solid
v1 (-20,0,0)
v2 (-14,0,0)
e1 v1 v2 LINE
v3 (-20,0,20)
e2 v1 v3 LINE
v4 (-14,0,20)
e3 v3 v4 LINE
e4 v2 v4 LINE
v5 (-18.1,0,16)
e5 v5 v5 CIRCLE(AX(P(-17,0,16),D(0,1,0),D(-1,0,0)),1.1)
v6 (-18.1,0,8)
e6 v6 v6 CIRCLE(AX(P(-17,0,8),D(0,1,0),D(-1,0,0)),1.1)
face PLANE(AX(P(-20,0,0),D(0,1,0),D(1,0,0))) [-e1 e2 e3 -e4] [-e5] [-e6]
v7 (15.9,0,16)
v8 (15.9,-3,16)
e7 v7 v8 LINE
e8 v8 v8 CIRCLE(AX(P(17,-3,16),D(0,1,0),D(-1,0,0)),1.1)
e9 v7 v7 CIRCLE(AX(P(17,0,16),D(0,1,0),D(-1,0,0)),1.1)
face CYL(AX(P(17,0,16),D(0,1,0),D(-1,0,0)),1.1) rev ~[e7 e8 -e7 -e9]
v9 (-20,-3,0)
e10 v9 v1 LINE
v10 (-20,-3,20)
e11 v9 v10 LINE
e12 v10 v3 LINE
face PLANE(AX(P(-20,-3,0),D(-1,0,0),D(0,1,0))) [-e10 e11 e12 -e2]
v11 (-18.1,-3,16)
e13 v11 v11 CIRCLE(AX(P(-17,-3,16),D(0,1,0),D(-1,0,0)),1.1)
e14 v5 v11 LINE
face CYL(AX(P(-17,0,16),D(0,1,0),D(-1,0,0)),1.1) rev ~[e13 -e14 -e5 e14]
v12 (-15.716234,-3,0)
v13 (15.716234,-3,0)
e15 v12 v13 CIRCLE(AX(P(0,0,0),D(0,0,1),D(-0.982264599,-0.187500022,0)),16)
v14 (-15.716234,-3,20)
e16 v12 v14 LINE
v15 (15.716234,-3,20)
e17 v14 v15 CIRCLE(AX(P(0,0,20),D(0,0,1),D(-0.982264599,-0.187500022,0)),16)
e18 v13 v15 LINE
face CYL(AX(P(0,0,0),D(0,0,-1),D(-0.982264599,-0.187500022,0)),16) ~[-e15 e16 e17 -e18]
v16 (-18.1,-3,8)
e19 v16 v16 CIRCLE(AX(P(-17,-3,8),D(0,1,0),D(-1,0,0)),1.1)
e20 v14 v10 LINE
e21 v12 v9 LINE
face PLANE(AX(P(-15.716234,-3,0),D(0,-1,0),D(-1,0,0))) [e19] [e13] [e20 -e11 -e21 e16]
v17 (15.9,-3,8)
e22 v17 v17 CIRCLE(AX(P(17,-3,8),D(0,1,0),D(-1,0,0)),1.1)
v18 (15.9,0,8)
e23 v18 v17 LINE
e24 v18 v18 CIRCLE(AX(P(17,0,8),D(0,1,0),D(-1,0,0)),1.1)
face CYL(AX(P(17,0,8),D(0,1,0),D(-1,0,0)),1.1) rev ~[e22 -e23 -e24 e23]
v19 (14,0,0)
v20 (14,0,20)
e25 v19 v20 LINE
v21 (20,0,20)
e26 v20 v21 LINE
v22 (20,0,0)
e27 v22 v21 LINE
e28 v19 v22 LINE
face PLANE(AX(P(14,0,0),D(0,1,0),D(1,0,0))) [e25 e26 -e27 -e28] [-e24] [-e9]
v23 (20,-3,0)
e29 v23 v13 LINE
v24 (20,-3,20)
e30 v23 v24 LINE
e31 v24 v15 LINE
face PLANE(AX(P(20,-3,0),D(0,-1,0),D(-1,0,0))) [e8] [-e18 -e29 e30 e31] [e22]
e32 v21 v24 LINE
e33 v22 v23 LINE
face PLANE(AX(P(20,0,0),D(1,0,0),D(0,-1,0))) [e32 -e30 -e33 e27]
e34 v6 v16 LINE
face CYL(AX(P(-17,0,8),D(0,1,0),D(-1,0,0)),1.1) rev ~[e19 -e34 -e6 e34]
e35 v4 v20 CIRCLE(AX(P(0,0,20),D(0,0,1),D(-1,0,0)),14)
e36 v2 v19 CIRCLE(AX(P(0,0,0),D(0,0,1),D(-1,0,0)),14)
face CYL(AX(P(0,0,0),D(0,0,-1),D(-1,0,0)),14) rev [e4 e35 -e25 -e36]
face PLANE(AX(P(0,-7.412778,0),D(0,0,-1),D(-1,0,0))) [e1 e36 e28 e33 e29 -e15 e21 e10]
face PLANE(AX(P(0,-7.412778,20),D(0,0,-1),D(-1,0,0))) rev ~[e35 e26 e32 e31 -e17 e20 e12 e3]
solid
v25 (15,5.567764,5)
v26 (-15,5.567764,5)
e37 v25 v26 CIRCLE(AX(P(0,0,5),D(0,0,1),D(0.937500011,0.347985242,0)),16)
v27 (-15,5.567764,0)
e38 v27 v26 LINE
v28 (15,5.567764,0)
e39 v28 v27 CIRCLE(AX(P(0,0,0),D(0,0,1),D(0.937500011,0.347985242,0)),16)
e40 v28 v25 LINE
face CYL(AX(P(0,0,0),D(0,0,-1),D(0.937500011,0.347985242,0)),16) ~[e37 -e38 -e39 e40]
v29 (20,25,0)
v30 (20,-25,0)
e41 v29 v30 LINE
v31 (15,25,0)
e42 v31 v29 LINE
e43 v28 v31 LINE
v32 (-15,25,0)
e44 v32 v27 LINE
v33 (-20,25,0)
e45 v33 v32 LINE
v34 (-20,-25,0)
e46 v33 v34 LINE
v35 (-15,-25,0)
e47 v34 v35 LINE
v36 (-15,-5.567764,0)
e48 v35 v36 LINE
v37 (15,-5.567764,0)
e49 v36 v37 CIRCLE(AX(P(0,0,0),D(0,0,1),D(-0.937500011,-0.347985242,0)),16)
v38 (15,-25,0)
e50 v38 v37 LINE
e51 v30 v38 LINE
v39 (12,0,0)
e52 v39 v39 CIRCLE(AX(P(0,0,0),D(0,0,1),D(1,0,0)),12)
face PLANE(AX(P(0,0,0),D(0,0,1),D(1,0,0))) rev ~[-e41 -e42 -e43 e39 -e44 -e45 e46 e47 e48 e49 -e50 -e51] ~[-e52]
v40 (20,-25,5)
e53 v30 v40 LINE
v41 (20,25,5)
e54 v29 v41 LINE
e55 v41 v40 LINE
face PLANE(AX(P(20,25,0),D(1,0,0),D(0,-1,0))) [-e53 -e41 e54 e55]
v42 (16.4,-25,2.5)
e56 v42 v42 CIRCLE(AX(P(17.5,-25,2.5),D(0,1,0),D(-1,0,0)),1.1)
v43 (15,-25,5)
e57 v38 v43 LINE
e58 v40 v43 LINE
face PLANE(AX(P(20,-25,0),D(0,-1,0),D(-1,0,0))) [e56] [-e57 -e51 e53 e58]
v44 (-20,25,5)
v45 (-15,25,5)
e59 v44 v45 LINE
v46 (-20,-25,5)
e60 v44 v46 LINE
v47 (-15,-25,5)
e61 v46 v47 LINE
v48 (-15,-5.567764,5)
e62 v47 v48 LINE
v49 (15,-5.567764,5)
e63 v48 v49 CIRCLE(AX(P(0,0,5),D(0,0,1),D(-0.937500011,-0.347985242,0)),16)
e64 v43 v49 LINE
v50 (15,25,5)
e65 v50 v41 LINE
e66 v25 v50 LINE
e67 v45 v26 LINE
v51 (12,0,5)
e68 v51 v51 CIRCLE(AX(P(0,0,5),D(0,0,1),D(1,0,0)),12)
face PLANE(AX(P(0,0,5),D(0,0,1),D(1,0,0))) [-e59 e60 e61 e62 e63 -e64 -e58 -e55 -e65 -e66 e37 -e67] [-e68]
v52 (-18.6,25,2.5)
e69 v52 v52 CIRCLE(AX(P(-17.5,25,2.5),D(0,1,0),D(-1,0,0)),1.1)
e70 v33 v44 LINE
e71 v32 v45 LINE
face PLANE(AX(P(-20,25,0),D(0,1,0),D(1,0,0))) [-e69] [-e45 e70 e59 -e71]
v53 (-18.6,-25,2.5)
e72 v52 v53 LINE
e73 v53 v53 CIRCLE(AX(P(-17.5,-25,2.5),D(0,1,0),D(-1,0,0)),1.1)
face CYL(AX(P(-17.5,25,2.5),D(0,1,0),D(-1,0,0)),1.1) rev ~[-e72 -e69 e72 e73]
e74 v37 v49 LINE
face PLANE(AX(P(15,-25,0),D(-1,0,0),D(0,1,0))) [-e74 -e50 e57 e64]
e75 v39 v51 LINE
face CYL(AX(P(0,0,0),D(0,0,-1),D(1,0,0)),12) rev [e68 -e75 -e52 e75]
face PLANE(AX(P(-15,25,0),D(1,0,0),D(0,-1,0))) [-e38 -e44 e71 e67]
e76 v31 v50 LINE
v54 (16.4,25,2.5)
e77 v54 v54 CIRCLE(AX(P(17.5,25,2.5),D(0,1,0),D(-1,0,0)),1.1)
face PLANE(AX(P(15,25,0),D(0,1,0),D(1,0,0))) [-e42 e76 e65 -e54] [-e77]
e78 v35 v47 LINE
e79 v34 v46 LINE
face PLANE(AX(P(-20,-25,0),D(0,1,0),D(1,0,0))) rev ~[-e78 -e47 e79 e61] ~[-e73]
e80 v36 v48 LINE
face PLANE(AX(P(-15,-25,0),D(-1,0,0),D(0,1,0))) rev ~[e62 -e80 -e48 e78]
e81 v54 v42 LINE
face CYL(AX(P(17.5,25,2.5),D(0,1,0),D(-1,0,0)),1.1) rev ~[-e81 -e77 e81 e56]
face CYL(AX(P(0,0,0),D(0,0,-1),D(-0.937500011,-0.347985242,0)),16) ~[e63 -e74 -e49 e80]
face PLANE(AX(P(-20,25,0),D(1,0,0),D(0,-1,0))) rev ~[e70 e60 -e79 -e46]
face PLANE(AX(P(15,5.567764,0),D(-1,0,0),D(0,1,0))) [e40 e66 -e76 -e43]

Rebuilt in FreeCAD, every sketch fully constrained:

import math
import FreeCAD as App
import Part
import Sketcher
from FreeCAD import Vector

doc = App.newDocument("Part")
params = doc.addObject("Spreadsheet::Sheet", "Params")
for row, (alias, value) in enumerate([
    ("sketch1_radius", "16 mm"),
    ("sketch1_radius2", "14 mm"),
    ("sketch1_width", "6 mm"),
    ("sketch1_height", "3 mm"),
    ("pad1_length", "20 mm"),
    ("sketch2_diameter", "2.2 mm"),
    ("sketch3_diameter", "24 mm"),
    ("sketch3_radius", "16 mm"),
    ("sketch3_width", "5 mm"),
    ("sketch3_height", "50 mm"),
    ("pad2_length", "5 mm"),
    ("sketch4_diameter", "2.2 mm"),
], start=1):
    params.set(f"A{row}", alias)
    params.set(f"B{row}", "=" + value)
    params.setAlias(f"B{row}", alias)

body = doc.addObject("PartDesign::Body", "Body")

sketch1 = body.newObject("Sketcher::SketchObject", "Sketch")
sketch1.AttachmentSupport = (doc.getObject("XY_Plane"), [""])
sketch1.MapMode = "FlatFace"
sketch1.addGeometry([
    Part.LineSegment(Vector(-20, -3, 0), Vector(-15.716234, -3, 0)),
    Part.ArcOfCircle(Part.Circle(Vector(0, 0, 0), Vector(0, 0, 1), 16), math.radians(-169.193076), math.radians(-10.806924)),
    Part.LineSegment(Vector(15.716234, -3, 0), Vector(20, -3, 0)),
    Part.LineSegment(Vector(20, -3, 0), Vector(20, 0, 0)),
    Part.LineSegment(Vector(20, 0, 0), Vector(14, 0, 0)),
    Part.ArcOfCircle(Part.Circle(Vector(0, 0, 0), Vector(0, 0, 1), 14), math.radians(180), math.radians(360)),
    Part.LineSegment(Vector(-14, 0, 0), Vector(-20, 0, 0)),
    Part.LineSegment(Vector(-20, 0, 0), Vector(-20, -3, 0)),
], False)
sketch1.addConstraint([
    Sketcher.Constraint("Coincident", 0, 2, 1, 1),
    Sketcher.Constraint("Coincident", 1, 2, 2, 1),
    Sketcher.Constraint("Coincident", 2, 2, 3, 1),
    Sketcher.Constraint("Coincident", 3, 2, 4, 1),
    Sketcher.Constraint("Coincident", 4, 2, 5, 2),
    Sketcher.Constraint("Coincident", 5, 1, 6, 1),
    Sketcher.Constraint("Coincident", 6, 2, 7, 1),
    Sketcher.Constraint("Coincident", 7, 2, 0, 1),
    Sketcher.Constraint("Horizontal", 0),
    Sketcher.Constraint("Horizontal", 2),
    Sketcher.Constraint("Vertical", 3),
    Sketcher.Constraint("Horizontal", 4),
    Sketcher.Constraint("Horizontal", 6),
    Sketcher.Constraint("Vertical", 7),
    Sketcher.Constraint("Coincident", 1, 3, -1, 1),
    Sketcher.Constraint("Coincident", 5, 3, -1, 1),
    Sketcher.Constraint("Symmetric", 3, 2, 6, 2, -1, 1),
    Sketcher.Constraint("PointOnObject", 3, 2, -1),
    Sketcher.Constraint("Horizontal", 0, 2, 1, 2),
    Sketcher.Constraint("Radius", 1, 16.0),
    Sketcher.Constraint("Radius", 5, 14.0),
    Sketcher.Constraint("DistanceX", 4, 2, 4, 1, 6.0),
    Sketcher.Constraint("DistanceY", 3, 1, 3, 2, 3.0),
])
sketch1.setExpression("Constraints[19]", "Params.sketch1_radius")
sketch1.setExpression("Constraints[20]", "Params.sketch1_radius2")
sketch1.setExpression("Constraints[21]", "Params.sketch1_width")
sketch1.setExpression("Constraints[22]", "Params.sketch1_height")
pad1 = body.newObject("PartDesign::Pad", "Pad")
pad1.Profile = sketch1
pad1.setExpression("Length", "Params.pad1_length")

sketch2 = body.newObject("Sketcher::SketchObject", "Sketch001")
sketch2.AttachmentSupport = (doc.getObject("XZ_Plane"), [""])
sketch2.MapMode = "FlatFace"
sketch2.addGeometry([
    Part.Circle(Vector(17, 16, 0), Vector(0, 0, 1), 1.1),
    Part.Circle(Vector(17, 8, 0), Vector(0, 0, 1), 1.1),
    Part.Circle(Vector(-17, 16, 0), Vector(0, 0, 1), 1.1),
    Part.Circle(Vector(-17, 8, 0), Vector(0, 0, 1), 1.1),
], False)
sketch2.addConstraint([
    Sketcher.Constraint("Equal", 0, 1),
    Sketcher.Constraint("Equal", 1, 2),
    Sketcher.Constraint("Equal", 2, 3),
    Sketcher.Constraint("Symmetric", 0, 3, 2, 3, -2),
    Sketcher.Constraint("Symmetric", 1, 3, 3, 3, -2),
    Sketcher.Constraint("Vertical", 0, 3, 1, 3),
    Sketcher.Constraint("Diameter", 0, 2.2),
    Sketcher.Constraint("DistanceX", -1, 1, 0, 3, 17.0),
    Sketcher.Constraint("DistanceY", -1, 1, 0, 3, 16.0),
    Sketcher.Constraint("DistanceY", -1, 1, 1, 3, 8.0),
])
sketch2.setExpression("Constraints[6]", "Params.sketch2_diameter")
pocket1 = body.newObject("PartDesign::Pocket", "Pocket")
pocket1.Profile = sketch2
pocket1.Type = "ThroughAll"
pocket1.Reversed = True
body2 = doc.addObject("PartDesign::Body", "Body001")

sketch3 = body2.newObject("Sketcher::SketchObject", "Sketch002")
sketch3.AttachmentSupport = (doc.getObject("XY_Plane001"), [""])
sketch3.MapMode = "FlatFace"
sketch3.addGeometry([
    Part.LineSegment(Vector(-20, 25, 0), Vector(-20, -25, 0)),
    Part.LineSegment(Vector(-20, -25, 0), Vector(-15, -25, 0)),
    Part.LineSegment(Vector(-15, -25, 0), Vector(-15, -5.567764, 0)),
    Part.ArcOfCircle(Part.Circle(Vector(0, 0, 0), Vector(0, 0, 1), 16), math.radians(-159.635867), math.radians(-20.364133)),
    Part.LineSegment(Vector(15, -5.567764, 0), Vector(15, -25, 0)),
    Part.LineSegment(Vector(15, -25, 0), Vector(20, -25, 0)),
    Part.LineSegment(Vector(20, -25, 0), Vector(20, 25, 0)),
    Part.LineSegment(Vector(20, 25, 0), Vector(15, 25, 0)),
    Part.LineSegment(Vector(15, 25, 0), Vector(15, 5.567764, 0)),
    Part.ArcOfCircle(Part.Circle(Vector(0, 0, 0), Vector(0, 0, 1), 16), math.radians(20.364133), math.radians(159.635867)),
    Part.LineSegment(Vector(-15, 5.567764, 0), Vector(-15, 25, 0)),
    Part.LineSegment(Vector(-15, 25, 0), Vector(-20, 25, 0)),
    Part.Circle(Vector(0, 0, 0), Vector(0, 0, 1), 12),
], False)
sketch3.addConstraint([
    Sketcher.Constraint("Coincident", 0, 2, 1, 1),
    Sketcher.Constraint("Coincident", 1, 2, 2, 1),
    Sketcher.Constraint("Coincident", 2, 2, 3, 1),
    Sketcher.Constraint("Coincident", 3, 2, 4, 1),
    Sketcher.Constraint("Coincident", 4, 2, 5, 1),
    Sketcher.Constraint("Coincident", 5, 2, 6, 1),
    Sketcher.Constraint("Coincident", 6, 2, 7, 1),
    Sketcher.Constraint("Coincident", 7, 2, 8, 1),
    Sketcher.Constraint("Coincident", 8, 2, 9, 1),
    Sketcher.Constraint("Coincident", 9, 2, 10, 1),
    Sketcher.Constraint("Coincident", 10, 2, 11, 1),
    Sketcher.Constraint("Coincident", 11, 2, 0, 1),
    Sketcher.Constraint("Vertical", 0),
    Sketcher.Constraint("Horizontal", 1),
    Sketcher.Constraint("Vertical", 2),
    Sketcher.Constraint("Vertical", 4),
    Sketcher.Constraint("Horizontal", 5),
    Sketcher.Constraint("Vertical", 6),
    Sketcher.Constraint("Horizontal", 7),
    Sketcher.Constraint("Vertical", 8),
    Sketcher.Constraint("Vertical", 10),
    Sketcher.Constraint("Horizontal", 11),
    Sketcher.Constraint("Coincident", 3, 3, -1, 1),
    Sketcher.Constraint("Coincident", 9, 3, -1, 1),
    Sketcher.Constraint("Coincident", 12, 3, -1, 1),
    Sketcher.Constraint("Equal", 3, 9),
    Sketcher.Constraint("Symmetric", 0, 2, 6, 2, -1, 1),
    Sketcher.Constraint("Symmetric", 4, 2, 10, 2, -1, 1),
    Sketcher.Constraint("Symmetric", 1, 2, 4, 2, -2),
    Sketcher.Constraint("Horizontal", 8, 2, 9, 2),
    Sketcher.Constraint("Diameter", 12, 24.0),
    Sketcher.Constraint("Radius", 3, 16.0),
    Sketcher.Constraint("DistanceX", 1, 1, 1, 2, 5.0),
    Sketcher.Constraint("DistanceY", 0, 2, 0, 1, 50.0),
    Sketcher.Constraint("DistanceX", 0, 2, -1, 1, 20.0),
])
sketch3.setExpression("Constraints[30]", "Params.sketch3_diameter")
sketch3.setExpression("Constraints[31]", "Params.sketch3_radius")
sketch3.setExpression("Constraints[32]", "Params.sketch3_width")
sketch3.setExpression("Constraints[33]", "Params.sketch3_height")
pad2 = body2.newObject("PartDesign::Pad", "Pad001")
pad2.Profile = sketch3
pad2.setExpression("Length", "Params.pad2_length")

sketch4 = body2.newObject("Sketcher::SketchObject", "Sketch003")
sketch4.AttachmentSupport = (doc.getObject("XZ_Plane001"), [""])
sketch4.MapMode = "FlatFace"
sketch4.AttachmentOffset = App.Placement(Vector(0, 0, -25), App.Rotation())
sketch4.addGeometry([
    Part.Circle(Vector(17.5, 2.5, 0), Vector(0, 0, 1), 1.1),
    Part.Circle(Vector(-17.5, 2.5, 0), Vector(0, 0, 1), 1.1),
], False)
sketch4.addConstraint([
    Sketcher.Constraint("Equal", 0, 1),
    Sketcher.Constraint("Symmetric", 0, 3, 1, 3, -2),
    Sketcher.Constraint("Diameter", 0, 2.2),
    Sketcher.Constraint("DistanceX", 1, 3, 0, 3, 35.0),
    Sketcher.Constraint("DistanceY", -1, 1, 0, 3, 2.5),
])
sketch4.setExpression("Constraints[2]", "Params.sketch4_diameter")
pocket2 = body2.newObject("PartDesign::Pocket", "Pocket001")
pocket2.Profile = sketch4
pocket2.Type = "ThroughAll"
pocket2.Reversed = True

doc.recompute()
